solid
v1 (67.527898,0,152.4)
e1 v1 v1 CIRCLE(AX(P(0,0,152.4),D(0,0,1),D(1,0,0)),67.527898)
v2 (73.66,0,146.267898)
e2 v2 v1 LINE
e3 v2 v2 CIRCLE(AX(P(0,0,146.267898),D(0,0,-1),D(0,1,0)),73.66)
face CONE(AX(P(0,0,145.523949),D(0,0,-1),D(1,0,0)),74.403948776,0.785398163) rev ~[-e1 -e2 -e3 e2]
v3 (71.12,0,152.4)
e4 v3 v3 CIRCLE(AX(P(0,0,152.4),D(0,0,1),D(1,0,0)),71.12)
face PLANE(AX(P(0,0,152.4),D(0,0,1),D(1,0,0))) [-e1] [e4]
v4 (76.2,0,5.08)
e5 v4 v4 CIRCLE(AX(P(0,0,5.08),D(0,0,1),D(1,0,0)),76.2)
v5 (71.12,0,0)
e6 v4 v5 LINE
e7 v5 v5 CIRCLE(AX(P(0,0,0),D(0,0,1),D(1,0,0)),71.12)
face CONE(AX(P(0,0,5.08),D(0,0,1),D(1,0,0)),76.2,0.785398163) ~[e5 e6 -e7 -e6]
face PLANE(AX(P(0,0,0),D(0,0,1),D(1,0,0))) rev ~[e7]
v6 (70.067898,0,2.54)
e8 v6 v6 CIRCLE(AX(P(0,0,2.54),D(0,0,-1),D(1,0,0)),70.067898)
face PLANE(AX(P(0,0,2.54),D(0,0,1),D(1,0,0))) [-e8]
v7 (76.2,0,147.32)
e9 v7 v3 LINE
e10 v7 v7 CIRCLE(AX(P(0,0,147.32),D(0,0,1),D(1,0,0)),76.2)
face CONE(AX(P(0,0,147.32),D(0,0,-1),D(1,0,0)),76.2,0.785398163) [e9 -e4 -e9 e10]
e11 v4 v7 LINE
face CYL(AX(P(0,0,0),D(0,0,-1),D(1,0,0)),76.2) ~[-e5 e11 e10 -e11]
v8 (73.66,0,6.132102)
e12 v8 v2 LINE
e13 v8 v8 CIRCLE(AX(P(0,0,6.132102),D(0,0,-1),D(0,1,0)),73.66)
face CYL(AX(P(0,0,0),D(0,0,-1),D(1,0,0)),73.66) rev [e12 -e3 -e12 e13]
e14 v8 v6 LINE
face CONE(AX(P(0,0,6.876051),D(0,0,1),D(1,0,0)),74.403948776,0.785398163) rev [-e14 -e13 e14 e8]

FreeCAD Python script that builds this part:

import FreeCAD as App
import Part
import Sketcher

V = App.Vector
Q = App.Units.Quantity


def faces_at(feature, points):
    """Names of the faces that lie closest to the given points."""
    faces = feature.Shape.Faces
    near = lambda p: min(range(len(faces)), key=lambda i: faces[i].distToShape(Part.Vertex(*p))[0])
    return sorted({f"Face{near(p) + 1}" for p in points})

doc = App.newDocument("Part")
body = doc.addObject("PartDesign::Body", "Body")

sketch1 = body.newObject("Sketcher::SketchObject", "Sketch")
sketch1.AttachmentSupport = (doc.getObject("XY_Plane"), [""])
sketch1.MapMode = "FlatFace"
sketch1.addGeometry(Part.Circle(V(0, 0, 0), V(0, 0, 1), 76), False)
sketch1.addConstraint([
    Sketcher.Constraint("Coincident", 0, 3, -1, 1),
    Sketcher.Constraint("Diameter", 0, Q("6 in")),
])
pad1 = body.newObject("PartDesign::Pad", "Pad")
pad1.Profile = sketch1
pad1.Length = Q("6 in")
doc.recompute()

chamfer = body.newObject("PartDesign::Chamfer", "Chamfer")
chamfer.Base = (pad1, ["Edge1"])
chamfer.UseAllEdges = True
chamfer.Size = Q("0.2 in")
doc.recompute()

thickness = body.newObject("PartDesign::Thickness", "Thickness")
thickness.Base = (chamfer, faces_at(chamfer, [(0, 0, 152.4)]))
thickness.Value = Q("0.1 in")
thickness.Reversed = True
thickness.Join = "Arc"

doc.recompute()
